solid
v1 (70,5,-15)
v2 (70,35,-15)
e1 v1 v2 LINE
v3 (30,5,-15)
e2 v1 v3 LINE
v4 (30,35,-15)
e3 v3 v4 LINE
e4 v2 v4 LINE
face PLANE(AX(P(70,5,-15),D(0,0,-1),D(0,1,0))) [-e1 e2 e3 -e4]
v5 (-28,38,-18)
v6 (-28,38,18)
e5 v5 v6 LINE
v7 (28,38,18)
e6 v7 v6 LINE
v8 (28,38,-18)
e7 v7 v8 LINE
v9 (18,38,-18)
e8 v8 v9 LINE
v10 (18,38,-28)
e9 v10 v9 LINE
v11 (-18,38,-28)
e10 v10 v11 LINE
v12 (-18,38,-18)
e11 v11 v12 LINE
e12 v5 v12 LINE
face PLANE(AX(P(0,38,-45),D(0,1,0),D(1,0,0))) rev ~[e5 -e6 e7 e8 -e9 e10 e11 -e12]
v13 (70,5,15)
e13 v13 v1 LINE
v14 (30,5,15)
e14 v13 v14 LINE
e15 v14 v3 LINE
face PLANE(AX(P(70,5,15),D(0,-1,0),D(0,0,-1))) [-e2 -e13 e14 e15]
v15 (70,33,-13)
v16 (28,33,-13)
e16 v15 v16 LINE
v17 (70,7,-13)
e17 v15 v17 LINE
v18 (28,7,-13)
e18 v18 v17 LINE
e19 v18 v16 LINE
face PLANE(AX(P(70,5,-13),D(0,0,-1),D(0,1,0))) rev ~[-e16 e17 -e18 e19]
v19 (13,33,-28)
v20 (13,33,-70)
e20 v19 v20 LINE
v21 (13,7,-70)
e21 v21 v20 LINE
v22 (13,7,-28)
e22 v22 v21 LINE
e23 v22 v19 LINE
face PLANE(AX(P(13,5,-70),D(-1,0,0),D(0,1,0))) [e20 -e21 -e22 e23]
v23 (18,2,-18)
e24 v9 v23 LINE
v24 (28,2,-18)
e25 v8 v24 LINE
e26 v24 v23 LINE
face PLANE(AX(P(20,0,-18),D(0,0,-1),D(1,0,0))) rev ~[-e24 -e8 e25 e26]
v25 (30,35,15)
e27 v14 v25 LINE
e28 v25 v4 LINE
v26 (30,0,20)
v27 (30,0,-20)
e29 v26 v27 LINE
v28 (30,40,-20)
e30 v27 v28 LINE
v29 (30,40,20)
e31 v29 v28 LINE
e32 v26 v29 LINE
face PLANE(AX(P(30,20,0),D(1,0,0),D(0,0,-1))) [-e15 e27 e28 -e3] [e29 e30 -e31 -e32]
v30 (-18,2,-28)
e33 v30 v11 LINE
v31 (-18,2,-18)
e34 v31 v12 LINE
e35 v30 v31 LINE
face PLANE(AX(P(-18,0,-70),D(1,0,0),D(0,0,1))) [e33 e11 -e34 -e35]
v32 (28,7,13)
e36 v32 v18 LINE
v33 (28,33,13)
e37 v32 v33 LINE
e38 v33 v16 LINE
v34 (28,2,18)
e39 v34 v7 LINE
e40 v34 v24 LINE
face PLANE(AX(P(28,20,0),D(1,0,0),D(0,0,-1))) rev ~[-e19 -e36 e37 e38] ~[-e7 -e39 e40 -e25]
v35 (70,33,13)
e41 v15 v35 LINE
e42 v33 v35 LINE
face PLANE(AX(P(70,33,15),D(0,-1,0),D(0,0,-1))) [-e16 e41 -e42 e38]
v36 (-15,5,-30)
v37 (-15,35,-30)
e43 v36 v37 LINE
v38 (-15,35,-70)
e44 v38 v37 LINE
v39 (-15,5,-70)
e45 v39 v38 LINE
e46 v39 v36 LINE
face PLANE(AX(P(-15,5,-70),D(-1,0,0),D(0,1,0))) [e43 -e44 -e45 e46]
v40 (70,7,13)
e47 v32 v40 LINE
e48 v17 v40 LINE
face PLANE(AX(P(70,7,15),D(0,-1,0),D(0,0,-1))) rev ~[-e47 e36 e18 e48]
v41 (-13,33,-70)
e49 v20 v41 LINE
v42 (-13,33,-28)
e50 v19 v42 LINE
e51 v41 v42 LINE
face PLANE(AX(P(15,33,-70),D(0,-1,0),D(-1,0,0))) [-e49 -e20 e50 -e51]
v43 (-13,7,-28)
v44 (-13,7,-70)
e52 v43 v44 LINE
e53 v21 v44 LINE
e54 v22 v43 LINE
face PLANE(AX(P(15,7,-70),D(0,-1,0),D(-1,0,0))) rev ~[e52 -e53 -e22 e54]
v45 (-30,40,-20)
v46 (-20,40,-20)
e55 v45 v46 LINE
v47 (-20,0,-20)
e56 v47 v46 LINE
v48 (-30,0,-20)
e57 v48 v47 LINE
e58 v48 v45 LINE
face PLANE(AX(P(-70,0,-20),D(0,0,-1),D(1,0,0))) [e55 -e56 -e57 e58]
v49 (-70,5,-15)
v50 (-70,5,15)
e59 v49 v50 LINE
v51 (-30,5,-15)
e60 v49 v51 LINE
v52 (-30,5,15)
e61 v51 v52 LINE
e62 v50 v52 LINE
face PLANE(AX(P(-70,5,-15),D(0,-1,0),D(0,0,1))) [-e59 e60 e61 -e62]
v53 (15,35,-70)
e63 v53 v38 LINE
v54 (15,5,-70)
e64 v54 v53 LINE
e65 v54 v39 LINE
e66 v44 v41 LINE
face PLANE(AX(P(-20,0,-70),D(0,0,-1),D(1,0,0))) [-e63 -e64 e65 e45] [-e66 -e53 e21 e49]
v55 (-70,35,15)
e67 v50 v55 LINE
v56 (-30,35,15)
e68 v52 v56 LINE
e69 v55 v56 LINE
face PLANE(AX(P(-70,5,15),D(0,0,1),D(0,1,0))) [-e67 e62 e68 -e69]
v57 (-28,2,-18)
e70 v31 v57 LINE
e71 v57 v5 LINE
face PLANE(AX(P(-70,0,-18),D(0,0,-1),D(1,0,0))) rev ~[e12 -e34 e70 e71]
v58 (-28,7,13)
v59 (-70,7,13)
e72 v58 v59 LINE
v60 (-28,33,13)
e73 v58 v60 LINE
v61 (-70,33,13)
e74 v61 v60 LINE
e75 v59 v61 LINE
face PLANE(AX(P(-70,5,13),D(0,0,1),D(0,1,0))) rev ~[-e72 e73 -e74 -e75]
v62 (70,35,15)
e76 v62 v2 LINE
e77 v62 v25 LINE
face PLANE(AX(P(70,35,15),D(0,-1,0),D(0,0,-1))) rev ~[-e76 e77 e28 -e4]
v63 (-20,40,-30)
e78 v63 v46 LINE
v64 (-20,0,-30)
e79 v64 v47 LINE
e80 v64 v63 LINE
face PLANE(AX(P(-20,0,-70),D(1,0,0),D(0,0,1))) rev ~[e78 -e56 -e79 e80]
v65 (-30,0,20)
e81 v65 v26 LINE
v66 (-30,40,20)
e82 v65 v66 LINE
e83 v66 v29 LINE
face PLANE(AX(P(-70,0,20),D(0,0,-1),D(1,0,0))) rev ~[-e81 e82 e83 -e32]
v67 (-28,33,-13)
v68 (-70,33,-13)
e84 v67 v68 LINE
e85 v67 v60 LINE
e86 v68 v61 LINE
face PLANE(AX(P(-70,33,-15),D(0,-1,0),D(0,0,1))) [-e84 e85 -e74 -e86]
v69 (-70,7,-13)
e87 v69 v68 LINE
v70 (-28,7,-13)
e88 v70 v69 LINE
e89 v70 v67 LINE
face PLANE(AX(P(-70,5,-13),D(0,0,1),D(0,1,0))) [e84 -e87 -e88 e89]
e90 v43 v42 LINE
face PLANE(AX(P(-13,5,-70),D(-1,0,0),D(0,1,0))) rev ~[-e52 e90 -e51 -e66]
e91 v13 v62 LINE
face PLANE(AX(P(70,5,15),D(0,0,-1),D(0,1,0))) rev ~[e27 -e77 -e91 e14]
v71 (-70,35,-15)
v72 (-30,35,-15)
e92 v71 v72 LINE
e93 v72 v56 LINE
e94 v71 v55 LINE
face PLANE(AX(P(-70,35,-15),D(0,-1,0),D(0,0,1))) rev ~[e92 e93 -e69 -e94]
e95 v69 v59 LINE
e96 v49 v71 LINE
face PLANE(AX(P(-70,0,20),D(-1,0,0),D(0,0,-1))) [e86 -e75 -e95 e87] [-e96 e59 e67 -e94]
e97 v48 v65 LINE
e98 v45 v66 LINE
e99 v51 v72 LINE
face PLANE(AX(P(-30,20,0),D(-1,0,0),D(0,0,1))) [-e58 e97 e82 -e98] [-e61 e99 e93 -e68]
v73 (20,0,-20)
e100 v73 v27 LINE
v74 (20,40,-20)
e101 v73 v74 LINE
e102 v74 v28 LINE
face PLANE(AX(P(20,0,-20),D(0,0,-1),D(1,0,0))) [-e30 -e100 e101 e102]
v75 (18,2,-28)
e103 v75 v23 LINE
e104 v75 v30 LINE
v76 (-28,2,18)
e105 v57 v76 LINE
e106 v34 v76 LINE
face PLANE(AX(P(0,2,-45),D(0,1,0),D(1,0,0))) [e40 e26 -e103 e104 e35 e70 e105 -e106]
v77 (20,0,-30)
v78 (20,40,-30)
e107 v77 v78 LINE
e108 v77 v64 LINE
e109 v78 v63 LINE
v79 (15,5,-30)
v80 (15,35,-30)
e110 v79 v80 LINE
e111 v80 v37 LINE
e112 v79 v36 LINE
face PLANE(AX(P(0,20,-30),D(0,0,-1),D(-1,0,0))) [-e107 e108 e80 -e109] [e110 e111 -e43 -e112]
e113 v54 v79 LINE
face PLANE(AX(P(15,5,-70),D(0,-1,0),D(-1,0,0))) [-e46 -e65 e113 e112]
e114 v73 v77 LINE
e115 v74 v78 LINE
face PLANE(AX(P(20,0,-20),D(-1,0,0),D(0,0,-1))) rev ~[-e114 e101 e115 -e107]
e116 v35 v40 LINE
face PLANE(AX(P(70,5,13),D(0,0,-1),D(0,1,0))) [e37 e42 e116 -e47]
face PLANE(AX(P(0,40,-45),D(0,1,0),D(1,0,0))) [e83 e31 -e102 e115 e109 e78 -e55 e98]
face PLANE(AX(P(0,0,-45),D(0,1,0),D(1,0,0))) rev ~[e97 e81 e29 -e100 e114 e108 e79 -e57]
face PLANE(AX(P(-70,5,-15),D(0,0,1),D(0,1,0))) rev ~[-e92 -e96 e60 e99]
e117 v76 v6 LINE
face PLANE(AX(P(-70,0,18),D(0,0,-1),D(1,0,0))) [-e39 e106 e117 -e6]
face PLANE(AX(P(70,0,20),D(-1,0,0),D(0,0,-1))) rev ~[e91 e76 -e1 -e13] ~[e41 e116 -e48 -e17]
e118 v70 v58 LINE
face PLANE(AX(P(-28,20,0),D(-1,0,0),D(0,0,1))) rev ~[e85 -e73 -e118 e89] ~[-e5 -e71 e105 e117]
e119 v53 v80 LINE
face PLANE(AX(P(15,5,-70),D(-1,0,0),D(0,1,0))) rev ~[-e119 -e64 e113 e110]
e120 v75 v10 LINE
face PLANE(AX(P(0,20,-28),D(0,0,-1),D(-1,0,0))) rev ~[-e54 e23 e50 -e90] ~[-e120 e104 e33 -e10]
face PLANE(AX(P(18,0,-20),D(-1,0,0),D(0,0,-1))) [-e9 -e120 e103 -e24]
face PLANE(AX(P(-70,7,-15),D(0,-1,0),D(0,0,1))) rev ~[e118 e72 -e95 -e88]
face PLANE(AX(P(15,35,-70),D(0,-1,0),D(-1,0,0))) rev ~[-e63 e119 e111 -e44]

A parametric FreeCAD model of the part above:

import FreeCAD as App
import Part
import Sketcher


def faces_at(feature, points):
    """Names of the faces that lie closest to the given points."""
    faces = feature.Shape.Faces
    near = lambda p: min(range(len(faces)), key=lambda i: faces[i].distToShape(Part.Vertex(*p))[0])
    return sorted({f"Face{near(p) + 1}" for p in points})


def add_polygon(sketch, points):
    """Adds a closed chain of lines whose ends are joined by coincident constraints."""
    first, n = sketch.GeometryCount, len(points)
    for a, b in zip(points, points[1:] + points[:1]):
        sketch.addGeometry(Part.LineSegment(App.Vector(*a, 0), App.Vector(*b, 0)), False)
    for i in range(n):
        sketch.addConstraint(Sketcher.Constraint("Coincident", first + i, 2, first + (i + 1) % n, 1))

doc = App.newDocument("Part")
body = doc.addObject("PartDesign::Body", "Body")

sketch1 = body.newObject("Sketcher::SketchObject", "Sketch")
sketch1.AttachmentSupport = (doc.getObject("XZ_Plane"), [""])
sketch1.MapMode = "FlatFace"
add_polygon(sketch1, [(-20, -70), (-20, -20), (-70, -20), (-70, 20), (70, 20), (70, -20), (20, -20), (20, -70)])
sketch1.addConstraint([
    Sketcher.Constraint("Vertical", 0),
    Sketcher.Constraint("Horizontal", 1),
    Sketcher.Constraint("Vertical", 2),
    Sketcher.Constraint("Horizontal", 3),
    Sketcher.Constraint("Vertical", 4),
    Sketcher.Constraint("Horizontal", 5),
    Sketcher.Constraint("Vertical", 6),
    Sketcher.Constraint("Horizontal", 7),
    Sketcher.Constraint("Symmetric", 1, 2, 3, 2, -1, 1),
    Sketcher.Constraint("Symmetric", 0, 2, 5, 2, -2),
    Sketcher.Constraint("Equal", 5, 0),
    Sketcher.Constraint("Equal", 7, 2),
    Sketcher.Constraint("DistanceX", 1, 2, 1, 1, 50.0),
    Sketcher.Constraint("DistanceX", 3, 1, 3, 2, 140.0),
])
pad1 = body.newObject("PartDesign::Pad", "Pad")
pad1.Profile = sketch1
pad1.Length = 40
pad1.Reversed = True

sketch2 = body.newObject("Sketcher::SketchObject", "Sketch001")
sketch2.AttachmentSupport = (doc.getObject("YZ_Plane"), [""])
sketch2.MapMode = "FlatFace"
sketch2.AttachmentOffset = App.Placement(App.Vector(0, 0, 70), App.Rotation())
add_polygon(sketch2, [(40, 20), (0, 20), (0, -20), (40, -20)])
add_polygon(sketch2, [(5, -15), (5, 15), (35, 15), (35, -15)])
sketch2.addConstraint([
    Sketcher.Constraint("Horizontal", 0),
    Sketcher.Constraint("Vertical", 1),
    Sketcher.Constraint("Horizontal", 2),
    Sketcher.Constraint("Vertical", 3),
    Sketcher.Constraint("Vertical", 4),
    Sketcher.Constraint("Horizontal", 5),
    Sketcher.Constraint("Vertical", 6),
    Sketcher.Constraint("Horizontal", 7),
    Sketcher.Constraint("Symmetric", 0, 2, 1, 2, -1, 1),
    Sketcher.Constraint("Equal", 2, 1),
    Sketcher.Constraint("Equal", 7, 4),
    Sketcher.Constraint("DistanceX", 0, 2, 0, 1, 40.0),
    Sketcher.Constraint("DistanceX", 5, 1, 5, 2, 30.0),
    Sketcher.Constraint("DistanceX", -1, 1, 4, 2, 5.0),
    Sketcher.Constraint("DistanceY", -1, 1, 4, 2, 15.0),
])
pocket1 = body.newObject("PartDesign::Pocket", "Pocket")
pocket1.Profile = sketch2
pocket1.Length = 40

sketch3 = body.newObject("Sketcher::SketchObject", "Sketch002")
sketch3.AttachmentSupport = (doc.getObject("XY_Plane"), [""])
sketch3.MapMode = "FlatFace"
sketch3.AttachmentOffset = App.Placement(App.Vector(0, 0, -70), App.Rotation())
add_polygon(sketch3, [(20, 40), (20, 0), (-20, 0), (-20, 40)])
add_polygon(sketch3, [(-15, 5), (15, 5), (15, 35), (-15, 35)])
sketch3.addConstraint([
    Sketcher.Constraint("Vertical", 0),
    Sketcher.Constraint("Horizontal", 1),
    Sketcher.Constraint("Vertical", 2),
    Sketcher.Constraint("Horizontal", 3),
    Sketcher.Constraint("Horizontal", 4),
    Sketcher.Constraint("Vertical", 5),
    Sketcher.Constraint("Horizontal", 6),
    Sketcher.Constraint("Vertical", 7),
    Sketcher.Constraint("Symmetric", 0, 2, 1, 2, -1, 1),
    Sketcher.Constraint("Equal", 3, 0),
    Sketcher.Constraint("Equal", 6, 5),
    Sketcher.Constraint("DistanceX", 1, 2, 1, 1, 40.0),
    Sketcher.Constraint("DistanceX", 4, 1, 4, 2, 30.0),
    Sketcher.Constraint("DistanceX", -1, 1, 4, 2, 15.0),
    Sketcher.Constraint("DistanceY", -1, 1, 4, 2, 5.0),
])
pocket2 = body.newObject("PartDesign::Pocket", "Pocket001")
pocket2.Profile = sketch3
pocket2.Length = 40
pocket2.Reversed = True

sketch4 = body.newObject("Sketcher::SketchObject", "Sketch003")
sketch4.AttachmentSupport = (doc.getObject("YZ_Plane"), [""])
sketch4.MapMode = "FlatFace"
sketch4.AttachmentOffset = App.Placement(App.Vector(0, 0, -70), App.Rotation())
add_polygon(sketch4, [(40, -20), (0, -20), (0, 20), (40, 20)])
add_polygon(sketch4, [(5, 15), (5, -15), (35, -15), (35, 15)])
sketch4.addConstraint([
    Sketcher.Constraint("Horizontal", 0),
    Sketcher.Constraint("Vertical", 1),
    Sketcher.Constraint("Horizontal", 2),
    Sketcher.Constraint("Vertical", 3),
    Sketcher.Constraint("Vertical", 4),
    Sketcher.Constraint("Horizontal", 5),
    Sketcher.Constraint("Vertical", 6),
    Sketcher.Constraint("Horizontal", 7),
    Sketcher.Constraint("Symmetric", 0, 2, 1, 2, -1, 1),
    Sketcher.Constraint("Equal", 2, 1),
    Sketcher.Constraint("Equal", 7, 4),
    Sketcher.Constraint("DistanceX", 0, 2, 0, 1, 40.0),
    Sketcher.Constraint("DistanceX", 5, 1, 5, 2, 30.0),
    Sketcher.Constraint("DistanceX", -1, 1, 4, 2, 5.0),
    Sketcher.Constraint("DistanceY", 4, 2, -1, 1, 15.0),
])
pocket3 = body.newObject("PartDesign::Pocket", "Pocket002")
pocket3.Profile = sketch4
pocket3.Length = 40
pocket3.Reversed = True
doc.recompute()

thickness = body.newObject("PartDesign::Thickness", "Thickness")
thickness.Base = (pocket3, faces_at(pocket3, [(70, 20, 0), (0, 20, -70), (-70, 20, 0)]))
thickness.Value = 2
thickness.Reversed = True
thickness.Join = "Intersection"

doc.recompute()
